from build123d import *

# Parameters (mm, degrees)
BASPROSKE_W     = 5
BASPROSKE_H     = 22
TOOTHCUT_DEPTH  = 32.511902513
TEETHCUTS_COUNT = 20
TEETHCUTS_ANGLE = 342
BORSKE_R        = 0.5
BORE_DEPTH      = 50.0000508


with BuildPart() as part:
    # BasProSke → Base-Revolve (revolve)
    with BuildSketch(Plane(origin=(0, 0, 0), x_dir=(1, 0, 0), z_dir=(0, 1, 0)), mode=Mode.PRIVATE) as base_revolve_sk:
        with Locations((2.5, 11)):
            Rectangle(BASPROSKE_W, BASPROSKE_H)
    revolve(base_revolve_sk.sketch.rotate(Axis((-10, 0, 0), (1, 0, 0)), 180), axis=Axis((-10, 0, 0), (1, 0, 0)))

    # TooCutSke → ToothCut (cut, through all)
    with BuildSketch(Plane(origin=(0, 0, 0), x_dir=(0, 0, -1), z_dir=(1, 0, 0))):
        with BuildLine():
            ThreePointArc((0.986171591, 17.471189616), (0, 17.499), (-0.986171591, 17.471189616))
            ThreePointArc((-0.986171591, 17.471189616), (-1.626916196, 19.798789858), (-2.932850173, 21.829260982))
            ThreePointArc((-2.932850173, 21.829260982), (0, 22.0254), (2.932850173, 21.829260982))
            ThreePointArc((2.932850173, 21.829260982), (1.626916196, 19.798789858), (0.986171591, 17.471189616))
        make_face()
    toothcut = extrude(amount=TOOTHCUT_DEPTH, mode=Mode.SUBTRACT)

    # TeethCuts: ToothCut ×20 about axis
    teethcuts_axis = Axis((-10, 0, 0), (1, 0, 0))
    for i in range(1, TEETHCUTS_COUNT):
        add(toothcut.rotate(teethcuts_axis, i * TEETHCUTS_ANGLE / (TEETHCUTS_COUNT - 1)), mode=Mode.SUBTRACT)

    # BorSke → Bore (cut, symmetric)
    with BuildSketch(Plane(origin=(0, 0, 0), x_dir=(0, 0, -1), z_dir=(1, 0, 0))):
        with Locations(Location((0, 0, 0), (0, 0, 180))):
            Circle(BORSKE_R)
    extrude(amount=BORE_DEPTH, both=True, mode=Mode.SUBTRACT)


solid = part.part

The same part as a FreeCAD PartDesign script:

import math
import FreeCAD as App
import Part
import Sketcher

V = App.Vector
Q = App.Units.Quantity


def add_polygon(sketch, points):
    """Adds a closed chain of lines whose ends are joined by coincident constraints."""
    first, n = sketch.GeometryCount, len(points)
    for a, b in zip(points, points[1:] + points[:1]):
        sketch.addGeometry(Part.LineSegment(App.Vector(*a, 0), App.Vector(*b, 0)), False)
    for i in range(n):
        sketch.addConstraint(Sketcher.Constraint("Coincident", first + i, 2, first + (i + 1) % n, 1))

doc = App.newDocument("Part")
params = doc.addObject("Spreadsheet::Sheet", "Params")
for row, (alias, value) in enumerate([
    ("sketch1_width", "5 mm"),
    ("sketch1_height", "22 mm"),
    ("revolution_angle", "360 deg"),
    ("sketch2_radius", "8 mm"),
    ("sketch3_diameter", "1 mm"),
    ("pocket2_length", "100.000102 mm"),
], start=1):
    params.set(f"A{row}", alias)
    params.set(f"B{row}", "=" + value)
    params.setAlias(f"B{row}", alias)

body = doc.addObject("PartDesign::Body", "Body")

# Sketch on XZ plane
sketch1 = doc.addObject("Sketcher::SketchObject", "Sketch")
body.addObject(sketch1)
sketch1.AttachmentSupport = (doc.XZ_Plane, [""])
sketch1.MapMode = "FlatFace"
add_polygon(sketch1, [(0, -22), (0, 0), (5, 0), (5, -22)])  # lines 0-3
sketch1.addConstraint([
    Sketcher.Constraint("Vertical", 0),
    Sketcher.Constraint("Horizontal", 1),
    Sketcher.Constraint("Vertical", 2),
    Sketcher.Constraint("Horizontal", 3),
    Sketcher.Constraint("Coincident", 0, 2, -1, 1),
    Sketcher.Constraint("DistanceX", 1, 1, 1, 2, Q("5 mm")),
    Sketcher.Constraint("DistanceY", 0, 1, 0, 2, Q("22 mm")),
])
sketch1.setExpression("Constraints[9]", "Params.sketch1_width")
sketch1.setExpression("Constraints[10]", "Params.sketch1_height")
revolution = doc.addObject("PartDesign::Revolution", "Revolution")
body.addObject(revolution)
revolution.Profile = sketch1
revolution.ReferenceAxis = (sketch1, ["H_Axis"])
revolution.setExpression("Angle", "Params.revolution_angle")

# Sketch on YZ plane
sketch2 = doc.addObject("Sketcher::SketchObject", "Sketch001")
body.addObject(sketch2)
sketch2.AttachmentSupport = (doc.YZ_Plane, [""])
sketch2.MapMode = "FlatFace"
sketch2.addGeometry([
    Part.ArcOfCircle(Part.Circle(V(0, 0, 0), V(0, 0, 1), 17.5), math.radians(-3.23), math.radians(3.23)),
    Part.ArcOfCircle(Part.Circle(V(16.5, -8.9, 0), V(0, 0, 1), 8), math.radians(49), math.radians(83)),
    Part.ArcOfCircle(Part.Circle(V(0, 0, 0), V(0, 0, 1), 22), math.radians(-7.65), math.radians(7.65)),
    Part.ArcOfCircle(Part.Circle(V(16.5, 8.9, 0), V(0, 0, 1), 8), math.radians(-83), math.radians(-49)),
], False)
sketch2.addConstraint([
    Sketcher.Constraint("Coincident", 0, 1, 1, 2),
    Sketcher.Constraint("Coincident", 1, 1, 2, 1),
    Sketcher.Constraint("Coincident", 2, 2, 3, 2),
    Sketcher.Constraint("Coincident", 3, 1, 0, 2),
    Sketcher.Constraint("Coincident", 0, 3, -1, 1),
    Sketcher.Constraint("Coincident", 2, 3, -1, 1),
    Sketcher.Constraint("Equal", 1, 3),
    Sketcher.Constraint("Symmetric", 1, 3, 3, 3, -1),
    Sketcher.Constraint("Radius", 1, Q("8 mm")),
    Sketcher.Constraint("Radius", 0, Q("17.499 mm")),
    Sketcher.Constraint("Radius", 2, Q("22.0254 mm")),
    Sketcher.Constraint("DistanceY", 1, 1, 2, 2, Q("5.8657 mm")),
    Sketcher.Constraint("DistanceX", -1, 1, 1, 3, Q("16.536031 mm")),
])
sketch2.setExpression("Constraints[8]", "Params.sketch2_radius")
pocket1 = doc.addObject("PartDesign::Pocket", "Pocket")
body.addObject(pocket1)
pocket1.Profile = sketch2
pocket1.Type = "ThroughAll"
pocket1.Reversed = True
doc.recompute()

polarpattern = doc.addObject("PartDesign::PolarPattern", "PolarPattern")
body.addObject(polarpattern)
polarpattern.Originals = [pocket1]
polarpattern.Axis = (doc.X_Axis, [""])
polarpattern.Angle = 360
polarpattern.Occurrences = 20
body.Tip = polarpattern

# Sketch on YZ plane
sketch3 = doc.addObject("Sketcher::SketchObject", "Sketch002")
body.addObject(sketch3)
sketch3.AttachmentSupport = (doc.YZ_Plane, [""])
sketch3.MapMode = "FlatFace"
sketch3.addGeometry(Part.Circle(V(0, 0, 0), V(0, 0, 1), 0.5), False)
sketch3.addConstraint([
    Sketcher.Constraint("Coincident", 0, 3, -1, 1),
    Sketcher.Constraint("Diameter", 0, Q("1 mm")),
])
sketch3.setExpression("Constraints[1]", "Params.sketch3_diameter")
pocket2 = doc.addObject("PartDesign::Pocket", "Pocket001")
body.addObject(pocket2)
pocket2.Profile = sketch3
pocket2.setExpression("Length", "Params.pocket2_length")
pocket2.Midplane = True

doc.recompute()
